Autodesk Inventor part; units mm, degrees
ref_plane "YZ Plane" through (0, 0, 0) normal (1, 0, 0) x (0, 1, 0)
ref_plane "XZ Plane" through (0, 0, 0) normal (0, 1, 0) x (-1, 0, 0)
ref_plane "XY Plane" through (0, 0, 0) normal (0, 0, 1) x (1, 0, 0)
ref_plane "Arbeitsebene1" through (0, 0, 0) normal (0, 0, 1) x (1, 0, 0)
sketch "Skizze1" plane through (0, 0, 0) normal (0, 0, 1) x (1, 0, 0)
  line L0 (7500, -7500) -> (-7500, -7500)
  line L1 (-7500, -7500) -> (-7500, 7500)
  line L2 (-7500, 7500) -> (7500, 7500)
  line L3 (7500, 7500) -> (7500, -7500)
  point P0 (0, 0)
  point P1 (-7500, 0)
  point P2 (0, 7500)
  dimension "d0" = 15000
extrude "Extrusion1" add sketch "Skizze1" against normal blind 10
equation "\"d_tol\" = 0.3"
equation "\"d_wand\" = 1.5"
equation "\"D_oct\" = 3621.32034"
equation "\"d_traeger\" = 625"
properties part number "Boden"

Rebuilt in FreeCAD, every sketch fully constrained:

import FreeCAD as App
import Part
import Sketcher
from FreeCAD import Vector
Q = App.Units.Quantity


def add_polygon(sketch, points):
    """Adds a closed chain of lines whose ends are joined by coincident constraints."""
    first, n = sketch.GeometryCount, len(points)
    for a, b in zip(points, points[1:] + points[:1]):
        sketch.addGeometry(Part.LineSegment(App.Vector(*a, 0), App.Vector(*b, 0)), False)
    for i in range(n):
        sketch.addConstraint(Sketcher.Constraint("Coincident", first + i, 2, first + (i + 1) % n, 1))

doc = App.newDocument("Part")
params = doc.addObject("Spreadsheet::Sheet", "Params")
for row, (alias, value) in enumerate([
    ("sketch1_width", "15000 mm"),
    ("pad1_length", "10 mm"),
], start=1):
    params.set(f"A{row}", alias)
    params.set(f"B{row}", "=" + value)
    params.setAlias(f"B{row}", alias)

body = doc.addObject("PartDesign::Body", "Body")

# Sketch on XY plane
sketch1 = body.newObject("Sketcher::SketchObject", "Sketch")
sketch1.AttachmentSupport = (doc.getObject("XY_Plane"), [""])
sketch1.MapMode = "FlatFace"
add_polygon(sketch1, [(-7500, -7500), (7500, -7500), (7500, 7500), (-7500, 7500)])  # lines 0-3
sketch1.addConstraint(Sketcher.Constraint("Horizontal", 0))
sketch1.addConstraint(Sketcher.Constraint("Vertical", 1))
sketch1.addConstraint(Sketcher.Constraint("Horizontal", 2))
sketch1.addConstraint(Sketcher.Constraint("Vertical", 3))
sketch1.addConstraint(Sketcher.Constraint("Symmetric", 0, 2, 2, 2, -1, 1))
sketch1.addConstraint(Sketcher.Constraint("Equal", 2, 1))
sketch1.addConstraint(Sketcher.Constraint("DistanceX", 0, 1, 0, 2, Q("15000 mm")))
sketch1.setExpression("Constraints[10]", "Params.sketch1_width")
pad1 = body.newObject("PartDesign::Pad", "Pad")
pad1.Profile = sketch1
pad1.setExpression("Length", "Params.pad1_length")
pad1.Reversed = True

doc.recompute()
